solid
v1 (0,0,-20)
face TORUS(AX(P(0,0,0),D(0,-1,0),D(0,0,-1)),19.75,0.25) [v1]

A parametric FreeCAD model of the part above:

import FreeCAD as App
import Part
import Sketcher

doc = App.newDocument("Part")
params = doc.addObject("Spreadsheet::Sheet", "Params")
for row, (alias, value) in enumerate([
    ("sketch1_diameter", "0.5 mm"),
    ("revolution_angle", "360 deg"),
], start=1):
    params.set(f"A{row}", alias)
    params.set(f"B{row}", "=" + value)
    params.setAlias(f"B{row}", alias)

body = doc.addObject("PartDesign::Body", "Body")

# Sketch on XY plane
sketch1 = body.newObject("Sketcher::SketchObject", "Sketch")
sketch1.AttachmentSupport = (doc.getObject("XY_Plane"), [""])
sketch1.MapMode = "FlatFace"
sketch1.addGeometry(Part.Circle(App.Vector(-19.75, 0, 0), App.Vector(0, 0, 1), 0.25), False)
sketch1.addConstraint([
    Sketcher.Constraint("PointOnObject", 0, 3, -1),
    Sketcher.Constraint("Diameter", 0, 0.5),
    Sketcher.Constraint("DistanceX", 0, 3, -1, 1, 19.75),
])
sketch1.setExpression("Constraints[1]", "Params.sketch1_diameter")
revolution = body.newObject("PartDesign::Revolution", "Revolution")
revolution.Profile = sketch1
revolution.ReferenceAxis = (sketch1, ["V_Axis"])
revolution.setExpression("Angle", "Params.revolution_angle")

doc.recompute()
